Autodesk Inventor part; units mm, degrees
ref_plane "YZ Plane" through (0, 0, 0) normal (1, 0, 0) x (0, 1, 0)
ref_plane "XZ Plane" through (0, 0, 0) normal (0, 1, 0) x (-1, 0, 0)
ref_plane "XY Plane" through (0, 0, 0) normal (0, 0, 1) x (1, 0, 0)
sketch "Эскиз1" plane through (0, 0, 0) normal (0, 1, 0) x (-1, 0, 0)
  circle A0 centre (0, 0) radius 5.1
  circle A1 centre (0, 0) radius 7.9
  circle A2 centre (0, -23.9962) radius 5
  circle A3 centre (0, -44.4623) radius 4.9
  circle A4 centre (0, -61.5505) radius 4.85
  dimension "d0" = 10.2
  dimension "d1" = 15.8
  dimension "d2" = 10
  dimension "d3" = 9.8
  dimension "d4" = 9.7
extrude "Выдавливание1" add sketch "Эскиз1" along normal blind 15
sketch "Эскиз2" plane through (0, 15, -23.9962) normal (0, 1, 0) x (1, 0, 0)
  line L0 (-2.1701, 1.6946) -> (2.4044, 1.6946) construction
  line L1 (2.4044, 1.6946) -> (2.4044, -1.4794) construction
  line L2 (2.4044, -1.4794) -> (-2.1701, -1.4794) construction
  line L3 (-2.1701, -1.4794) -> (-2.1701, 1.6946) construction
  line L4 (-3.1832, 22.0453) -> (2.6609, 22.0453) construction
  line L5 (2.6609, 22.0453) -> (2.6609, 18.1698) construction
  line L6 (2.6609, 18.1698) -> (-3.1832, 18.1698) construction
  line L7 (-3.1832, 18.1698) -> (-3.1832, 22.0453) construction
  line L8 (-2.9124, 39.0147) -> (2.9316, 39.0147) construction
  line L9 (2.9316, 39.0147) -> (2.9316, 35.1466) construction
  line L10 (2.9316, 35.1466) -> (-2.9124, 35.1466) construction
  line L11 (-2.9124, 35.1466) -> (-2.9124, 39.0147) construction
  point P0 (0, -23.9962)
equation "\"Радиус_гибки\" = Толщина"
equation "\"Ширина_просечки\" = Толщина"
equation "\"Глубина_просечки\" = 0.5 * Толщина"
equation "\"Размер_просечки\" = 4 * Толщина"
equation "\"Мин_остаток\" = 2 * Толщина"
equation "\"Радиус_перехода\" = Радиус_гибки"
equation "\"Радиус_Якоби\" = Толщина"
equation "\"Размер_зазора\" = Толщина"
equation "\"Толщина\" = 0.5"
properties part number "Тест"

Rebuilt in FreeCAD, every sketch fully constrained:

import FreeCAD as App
import Part
import Sketcher
from FreeCAD import Vector
Q = App.Units.Quantity

doc = App.newDocument("Part")
body = doc.addObject("PartDesign::Body", "Body")
body.AllowCompound = True

sketch1 = body.newObject("Sketcher::SketchObject", "Sketch")
sketch1.AttachmentSupport = (doc.getObject("XZ_Plane"), [""])
sketch1.MapMode = "FlatFace"
sketch1.addGeometry(Part.Circle(Vector(0, 0, 0), Vector(0, 0, 1), 7.9), False)
sketch1.addGeometry(Part.Circle(Vector(0, 0, 0), Vector(0, 0, 1), 5.1), False)
sketch1.addGeometry(Part.Circle(Vector(0, -23.9962, 0), Vector(0, 0, 1), 5), False)
sketch1.addGeometry(Part.Circle(Vector(0, -44.4623, 0), Vector(0, 0, 1), 4.9), False)
sketch1.addGeometry(Part.Circle(Vector(0, -61.5505, 0), Vector(0, 0, 1), 4.85), False)
sketch1.addConstraint(Sketcher.Constraint("Coincident", 0, 3, -1, 1))
sketch1.addConstraint(Sketcher.Constraint("Coincident", 1, 3, -1, 1))
sketch1.addConstraint(Sketcher.Constraint("PointOnObject", 2, 3, -2))
sketch1.addConstraint(Sketcher.Constraint("PointOnObject", 3, 3, -2))
sketch1.addConstraint(Sketcher.Constraint("PointOnObject", 4, 3, -2))
sketch1.addConstraint(Sketcher.Constraint("Diameter", 2, Q("10 mm")))
sketch1.addConstraint(Sketcher.Constraint("Diameter", 0, Q("15.8 mm")))
sketch1.addConstraint(Sketcher.Constraint("Diameter", 1, Q("10.2 mm")))
sketch1.addConstraint(Sketcher.Constraint("Diameter", 3, Q("9.8 mm")))
sketch1.addConstraint(Sketcher.Constraint("Diameter", 4, Q("9.7 mm")))
sketch1.addConstraint(Sketcher.Constraint("DistanceY", 3, 3, 2, 3, Q("20.466 mm")))
sketch1.addConstraint(Sketcher.Constraint("DistanceY", 2, 3, -1, 1, Q("23.9962 mm")))
sketch1.addConstraint(Sketcher.Constraint("DistanceY", 4, 3, -1, 1, Q("61.5505 mm")))
pad1 = body.newObject("PartDesign::Pad", "Pad")
pad1.Profile = sketch1
pad1.Length = 15
pad1.Reversed = True

doc.recompute()
